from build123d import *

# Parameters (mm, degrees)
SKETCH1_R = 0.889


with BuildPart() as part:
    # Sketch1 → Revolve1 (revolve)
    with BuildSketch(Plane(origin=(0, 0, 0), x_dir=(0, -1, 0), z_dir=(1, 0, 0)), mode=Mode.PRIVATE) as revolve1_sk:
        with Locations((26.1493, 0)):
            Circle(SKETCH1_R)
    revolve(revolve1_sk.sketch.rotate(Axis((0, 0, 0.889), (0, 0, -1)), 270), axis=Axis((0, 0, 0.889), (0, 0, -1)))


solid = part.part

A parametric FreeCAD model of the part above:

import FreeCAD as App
import Part
import Sketcher
Q = App.Units.Quantity

doc = App.newDocument("Part")
body = doc.addObject("PartDesign::Body", "Body")

sketch1 = body.newObject("Sketcher::SketchObject", "Sketch")
sketch1.AttachmentSupport = (doc.getObject("YZ_Plane"), [""])
sketch1.MapMode = "FlatFace"
sketch1.addGeometry(Part.Circle(App.Vector(-26.1, 0, 0), App.Vector(0, 0, 1), 0.9), False)
sketch1.addConstraint(Sketcher.Constraint("PointOnObject", 0, 3, -1))
sketch1.addConstraint(Sketcher.Constraint("Diameter", 0, Q("0.07 in")))
sketch1.addConstraint(Sketcher.Constraint("DistanceX", 0, 3, -1, 1, Q("1.0295 in")))
revolution = body.newObject("PartDesign::Revolution", "Revolution")
revolution.Profile = sketch1
revolution.ReferenceAxis = (sketch1, ["V_Axis"])
revolution.Angle = 360

doc.recompute()
